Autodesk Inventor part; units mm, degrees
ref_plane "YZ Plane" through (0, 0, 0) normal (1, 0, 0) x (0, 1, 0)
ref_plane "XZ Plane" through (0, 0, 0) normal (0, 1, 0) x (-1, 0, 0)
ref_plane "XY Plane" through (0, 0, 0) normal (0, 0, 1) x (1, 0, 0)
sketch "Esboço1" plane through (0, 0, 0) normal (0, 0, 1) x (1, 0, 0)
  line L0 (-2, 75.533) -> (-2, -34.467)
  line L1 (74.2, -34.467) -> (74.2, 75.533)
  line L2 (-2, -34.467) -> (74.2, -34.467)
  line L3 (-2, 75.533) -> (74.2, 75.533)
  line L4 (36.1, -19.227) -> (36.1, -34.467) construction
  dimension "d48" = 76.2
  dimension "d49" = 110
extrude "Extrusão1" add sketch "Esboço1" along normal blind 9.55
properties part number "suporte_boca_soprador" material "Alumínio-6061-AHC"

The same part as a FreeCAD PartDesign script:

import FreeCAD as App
import Part
import Sketcher

V = App.Vector
Q = App.Units.Quantity

doc = App.newDocument("Part")
body = doc.addObject("PartDesign::Body", "Body")

# Sketch on XY plane
sketch1 = body.newObject("Sketcher::SketchObject", "Sketch")
sketch1.AttachmentSupport = (doc.getObject("XY_Plane"), [""])
sketch1.MapMode = "FlatFace"
sketch1.addGeometry([
    Part.LineSegment(V(74, 76, 0), V(-2, 76, 0)),
    Part.LineSegment(V(-2, 76, 0), V(-2, -34, 0)),
    Part.LineSegment(V(-2, -34, 0), V(74, -34, 0)),
    Part.LineSegment(V(74, -34, 0), V(74, 76, 0)),
], False)
sketch1.addConstraint([
    Sketcher.Constraint("Coincident", 0, 2, 1, 1),
    Sketcher.Constraint("Coincident", 1, 2, 2, 1),
    Sketcher.Constraint("Coincident", 2, 2, 3, 1),
    Sketcher.Constraint("Coincident", 3, 2, 0, 1),
    Sketcher.Constraint("Horizontal", 0),
    Sketcher.Constraint("Vertical", 1),
    Sketcher.Constraint("Horizontal", 2),
    Sketcher.Constraint("Vertical", 3),
    Sketcher.Constraint("DistanceX", 0, 2, 0, 1, Q("3 in")),
    Sketcher.Constraint("DistanceY", 1, 2, 1, 1, Q("4.3307 in")),
    Sketcher.Constraint("DistanceX", 0, 2, -1, 1, 2.0),
    Sketcher.Constraint("DistanceY", -1, 1, 0, 2, 75.533),
])
pad1 = body.newObject("PartDesign::Pad", "Pad")
pad1.Profile = sketch1
pad1.Length = 9.55

doc.recompute()
